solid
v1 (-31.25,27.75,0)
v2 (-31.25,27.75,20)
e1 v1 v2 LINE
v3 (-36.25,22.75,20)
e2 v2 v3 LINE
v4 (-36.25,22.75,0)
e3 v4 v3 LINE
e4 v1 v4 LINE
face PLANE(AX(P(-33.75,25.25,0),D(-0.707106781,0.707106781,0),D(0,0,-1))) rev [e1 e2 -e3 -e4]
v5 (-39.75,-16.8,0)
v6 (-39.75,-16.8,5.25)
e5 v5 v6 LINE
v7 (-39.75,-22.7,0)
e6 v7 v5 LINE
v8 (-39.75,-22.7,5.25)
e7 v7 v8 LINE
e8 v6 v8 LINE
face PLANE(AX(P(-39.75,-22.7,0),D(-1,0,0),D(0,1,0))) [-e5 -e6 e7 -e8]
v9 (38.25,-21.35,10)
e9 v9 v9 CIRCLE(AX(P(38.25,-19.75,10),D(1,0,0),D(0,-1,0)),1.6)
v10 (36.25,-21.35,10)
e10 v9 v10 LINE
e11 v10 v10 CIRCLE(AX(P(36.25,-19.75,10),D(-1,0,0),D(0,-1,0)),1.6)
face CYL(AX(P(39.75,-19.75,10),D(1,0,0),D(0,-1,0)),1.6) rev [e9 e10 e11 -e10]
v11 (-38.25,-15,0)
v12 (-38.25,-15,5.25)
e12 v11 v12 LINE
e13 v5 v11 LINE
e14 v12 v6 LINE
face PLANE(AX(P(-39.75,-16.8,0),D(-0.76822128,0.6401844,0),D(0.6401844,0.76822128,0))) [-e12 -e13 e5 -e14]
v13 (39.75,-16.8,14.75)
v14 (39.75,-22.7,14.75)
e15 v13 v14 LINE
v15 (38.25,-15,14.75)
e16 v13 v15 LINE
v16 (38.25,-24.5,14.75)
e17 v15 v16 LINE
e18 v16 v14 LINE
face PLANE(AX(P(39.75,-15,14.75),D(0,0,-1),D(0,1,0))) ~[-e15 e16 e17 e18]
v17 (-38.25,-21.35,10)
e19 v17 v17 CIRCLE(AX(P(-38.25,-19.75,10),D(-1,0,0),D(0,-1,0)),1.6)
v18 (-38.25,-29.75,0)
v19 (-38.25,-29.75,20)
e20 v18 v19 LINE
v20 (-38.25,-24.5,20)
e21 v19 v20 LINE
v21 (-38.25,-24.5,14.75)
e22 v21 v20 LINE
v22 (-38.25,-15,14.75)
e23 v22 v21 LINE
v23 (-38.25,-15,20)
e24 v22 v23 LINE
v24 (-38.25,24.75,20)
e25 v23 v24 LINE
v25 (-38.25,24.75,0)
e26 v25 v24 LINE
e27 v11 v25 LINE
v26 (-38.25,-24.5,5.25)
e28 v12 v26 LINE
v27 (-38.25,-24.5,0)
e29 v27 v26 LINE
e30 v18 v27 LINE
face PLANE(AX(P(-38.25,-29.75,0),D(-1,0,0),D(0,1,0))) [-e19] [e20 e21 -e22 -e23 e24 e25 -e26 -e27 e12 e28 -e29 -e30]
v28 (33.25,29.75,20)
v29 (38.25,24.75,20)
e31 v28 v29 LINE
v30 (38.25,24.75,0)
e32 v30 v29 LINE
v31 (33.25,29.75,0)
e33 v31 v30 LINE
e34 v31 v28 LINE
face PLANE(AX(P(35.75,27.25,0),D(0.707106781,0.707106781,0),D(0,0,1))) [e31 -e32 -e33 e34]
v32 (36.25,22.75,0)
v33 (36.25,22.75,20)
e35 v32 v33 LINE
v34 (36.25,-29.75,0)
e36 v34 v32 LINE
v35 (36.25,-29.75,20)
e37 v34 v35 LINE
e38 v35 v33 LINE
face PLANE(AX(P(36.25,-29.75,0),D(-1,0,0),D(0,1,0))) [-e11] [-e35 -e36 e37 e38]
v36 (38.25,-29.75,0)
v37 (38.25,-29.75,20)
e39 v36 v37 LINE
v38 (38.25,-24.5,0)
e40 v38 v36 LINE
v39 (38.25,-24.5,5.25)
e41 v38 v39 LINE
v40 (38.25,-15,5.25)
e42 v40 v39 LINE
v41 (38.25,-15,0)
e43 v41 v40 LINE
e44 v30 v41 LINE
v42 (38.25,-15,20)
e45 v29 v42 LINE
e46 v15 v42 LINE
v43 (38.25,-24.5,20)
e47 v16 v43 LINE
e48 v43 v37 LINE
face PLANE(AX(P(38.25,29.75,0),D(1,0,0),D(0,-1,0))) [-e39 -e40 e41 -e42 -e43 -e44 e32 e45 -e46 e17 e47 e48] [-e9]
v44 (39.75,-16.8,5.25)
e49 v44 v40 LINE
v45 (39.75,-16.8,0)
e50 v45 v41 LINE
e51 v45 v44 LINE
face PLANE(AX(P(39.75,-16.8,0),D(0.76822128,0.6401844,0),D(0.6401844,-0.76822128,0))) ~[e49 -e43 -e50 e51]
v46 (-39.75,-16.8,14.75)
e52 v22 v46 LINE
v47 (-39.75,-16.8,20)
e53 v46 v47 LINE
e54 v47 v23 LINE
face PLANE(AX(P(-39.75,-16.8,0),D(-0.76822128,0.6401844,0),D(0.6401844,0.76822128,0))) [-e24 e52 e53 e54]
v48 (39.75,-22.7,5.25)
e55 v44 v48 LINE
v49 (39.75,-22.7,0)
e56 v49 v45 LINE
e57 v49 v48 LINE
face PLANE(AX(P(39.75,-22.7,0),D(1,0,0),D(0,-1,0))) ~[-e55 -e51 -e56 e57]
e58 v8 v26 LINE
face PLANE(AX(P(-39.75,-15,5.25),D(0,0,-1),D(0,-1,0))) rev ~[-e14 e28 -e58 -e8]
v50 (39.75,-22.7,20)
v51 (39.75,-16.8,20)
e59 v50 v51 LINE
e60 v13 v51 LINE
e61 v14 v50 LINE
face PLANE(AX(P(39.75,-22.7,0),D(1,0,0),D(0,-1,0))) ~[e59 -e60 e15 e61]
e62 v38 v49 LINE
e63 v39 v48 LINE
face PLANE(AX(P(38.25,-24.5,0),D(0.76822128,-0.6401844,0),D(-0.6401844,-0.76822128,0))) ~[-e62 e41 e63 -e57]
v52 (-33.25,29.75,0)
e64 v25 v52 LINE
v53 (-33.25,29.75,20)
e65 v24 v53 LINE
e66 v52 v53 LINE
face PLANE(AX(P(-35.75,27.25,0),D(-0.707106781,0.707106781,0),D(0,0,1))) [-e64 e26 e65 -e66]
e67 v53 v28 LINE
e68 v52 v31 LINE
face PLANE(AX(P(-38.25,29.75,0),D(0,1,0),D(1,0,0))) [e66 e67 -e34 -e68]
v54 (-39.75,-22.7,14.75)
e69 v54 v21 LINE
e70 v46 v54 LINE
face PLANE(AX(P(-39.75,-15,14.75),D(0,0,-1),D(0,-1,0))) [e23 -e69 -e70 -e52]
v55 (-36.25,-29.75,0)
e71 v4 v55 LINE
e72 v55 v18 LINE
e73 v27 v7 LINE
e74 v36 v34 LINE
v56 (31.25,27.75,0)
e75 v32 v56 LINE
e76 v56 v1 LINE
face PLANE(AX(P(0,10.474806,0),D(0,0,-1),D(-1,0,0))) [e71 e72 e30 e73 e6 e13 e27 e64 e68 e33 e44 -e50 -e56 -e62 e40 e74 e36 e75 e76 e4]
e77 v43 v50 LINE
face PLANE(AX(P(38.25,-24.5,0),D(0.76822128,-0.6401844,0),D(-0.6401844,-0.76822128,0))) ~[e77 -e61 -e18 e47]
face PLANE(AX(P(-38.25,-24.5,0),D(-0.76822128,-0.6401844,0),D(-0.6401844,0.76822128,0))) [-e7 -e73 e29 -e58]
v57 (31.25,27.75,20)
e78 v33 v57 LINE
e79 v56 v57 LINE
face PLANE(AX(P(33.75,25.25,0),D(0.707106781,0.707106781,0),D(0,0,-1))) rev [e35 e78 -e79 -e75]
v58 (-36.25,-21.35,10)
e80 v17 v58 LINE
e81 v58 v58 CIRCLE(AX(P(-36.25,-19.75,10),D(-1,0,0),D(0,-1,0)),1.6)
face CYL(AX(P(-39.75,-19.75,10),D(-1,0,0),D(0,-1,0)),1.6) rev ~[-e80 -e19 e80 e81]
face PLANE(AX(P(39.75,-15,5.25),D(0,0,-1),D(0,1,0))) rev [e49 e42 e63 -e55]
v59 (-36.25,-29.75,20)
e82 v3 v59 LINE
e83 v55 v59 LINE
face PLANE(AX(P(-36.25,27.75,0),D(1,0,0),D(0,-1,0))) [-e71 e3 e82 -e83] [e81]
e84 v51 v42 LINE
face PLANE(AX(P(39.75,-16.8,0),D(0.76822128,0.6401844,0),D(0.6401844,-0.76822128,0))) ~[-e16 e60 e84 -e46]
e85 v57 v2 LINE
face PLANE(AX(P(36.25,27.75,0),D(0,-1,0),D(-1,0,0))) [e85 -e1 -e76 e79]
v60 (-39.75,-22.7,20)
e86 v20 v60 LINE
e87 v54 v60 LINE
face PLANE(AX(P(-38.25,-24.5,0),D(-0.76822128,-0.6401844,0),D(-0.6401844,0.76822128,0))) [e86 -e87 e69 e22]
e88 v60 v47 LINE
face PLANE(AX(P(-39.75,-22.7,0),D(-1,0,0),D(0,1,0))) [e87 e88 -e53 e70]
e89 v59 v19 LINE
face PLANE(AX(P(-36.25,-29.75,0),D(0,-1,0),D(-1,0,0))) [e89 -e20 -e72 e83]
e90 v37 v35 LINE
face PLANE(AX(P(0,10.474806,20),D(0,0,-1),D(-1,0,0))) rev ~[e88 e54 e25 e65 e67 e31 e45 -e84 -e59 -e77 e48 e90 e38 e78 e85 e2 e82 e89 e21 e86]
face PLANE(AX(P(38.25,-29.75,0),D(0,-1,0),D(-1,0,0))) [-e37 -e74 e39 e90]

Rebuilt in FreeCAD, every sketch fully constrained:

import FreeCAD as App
import Part
import Sketcher
from FreeCAD import Vector


def edges_at(feature, points):
    """Names of the edges that pass closest to the given points."""
    edges = feature.Shape.Edges
    near = lambda p: min(range(len(edges)), key=lambda i: edges[i].distToShape(Part.Vertex(*p))[0])
    return sorted({f"Edge{near(p) + 1}" for p in points})


def add_polygon(sketch, points):
    """Adds a closed chain of lines whose ends are joined by coincident constraints."""
    first, n = sketch.GeometryCount, len(points)
    for a, b in zip(points, points[1:] + points[:1]):
        sketch.addGeometry(Part.LineSegment(App.Vector(*a, 0), App.Vector(*b, 0)), False)
    for i in range(n):
        sketch.addConstraint(Sketcher.Constraint("Coincident", first + i, 2, first + (i + 1) % n, 1))

doc = App.newDocument("Part")
params = doc.addObject("Spreadsheet::Sheet", "Params")
for row, (alias, value) in enumerate([
    ("sketch1_width", "2 mm"),
    ("sketch1_width2", "72.5 mm"),
    ("sketch1_height", "59.5 mm"),
    ("sketch1_height2", "57.5 mm"),
    ("pad1_length", "20 mm"),
    ("sketch2_height", "5.9 mm"),
    ("sketch2_height2", "9.5 mm"),
    ("pad2_length", "20 mm"),
    ("sketch3_diameter", "3.2 mm"),
    ("pocket1_length", "3.5 mm"),
    ("sketch4_width", "9.5 mm"),
    ("pocket2_length", "1.5 mm"),
    ("chamfer_size", "5 mm"),
], start=1):
    params.set(f"A{row}", alias)
    params.set(f"B{row}", "=" + value)
    params.setAlias(f"B{row}", alias)

body = doc.addObject("PartDesign::Body", "Body")

# Sketch on XY plane
sketch1 = body.newObject("Sketcher::SketchObject", "Sketch")
sketch1.AttachmentSupport = (doc.getObject("XY_Plane"), [""])
sketch1.MapMode = "FlatFace"
add_polygon(sketch1, [(-38.2, 29.8), (-38.2, -29.8), (-36.2, -29.8), (-36.2, 27.8), (36.2, 27.8), (36.2, -29.8), (38.2, -29.8), (38.2, 29.8)])  # lines 0-7
sketch1.addConstraint([
    Sketcher.Constraint("Vertical", 0),
    Sketcher.Constraint("Horizontal", 1),
    Sketcher.Constraint("Vertical", 2),
    Sketcher.Constraint("Horizontal", 3),
    Sketcher.Constraint("Vertical", 4),
    Sketcher.Constraint("Horizontal", 5),
    Sketcher.Constraint("Vertical", 6),
    Sketcher.Constraint("Horizontal", 7),
    Sketcher.Constraint("Symmetric", 0, 2, 6, 2, -1, 1),
    Sketcher.Constraint("Symmetric", 1, 2, 4, 2, -2),
    Sketcher.Constraint("DistanceX", 1, 1, 1, 2, 2.0),
    Sketcher.Constraint("DistanceX", 3, 1, 3, 2, 72.5),
    Sketcher.Constraint("DistanceY", 0, 2, 0, 1, 59.5),
    Sketcher.Constraint("DistanceY", 2, 1, 2, 2, 57.5),
])
sketch1.setExpression("Constraints[18]", "Params.sketch1_width")
sketch1.setExpression("Constraints[19]", "Params.sketch1_width2")
sketch1.setExpression("Constraints[20]", "Params.sketch1_height")
sketch1.setExpression("Constraints[21]", "Params.sketch1_height2")
pad1 = body.newObject("PartDesign::Pad", "Pad")
pad1.Profile = sketch1
pad1.setExpression("Length", "Params.pad1_length")

# Sketch on XY plane
sketch2 = body.newObject("Sketcher::SketchObject", "Sketch001")
sketch2.AttachmentSupport = (doc.getObject("XY_Plane"), [""])
sketch2.MapMode = "FlatFace"
add_polygon(sketch2, [(-38.2, -24.5), (-39.8, -22.7), (-39.8, -16.8), (-38.2, -15)])  # lines 0-3
sketch2.addConstraint([
    Sketcher.Constraint("Vertical", 1),
    Sketcher.Constraint("Vertical", 3),
    Sketcher.Constraint("Equal", 0, 2),
    Sketcher.Constraint("DistanceY", 1, 1, 1, 2, 5.9),
    Sketcher.Constraint("DistanceY", 3, 2, 3, 1, 9.5),
    Sketcher.Constraint("DistanceY", 2, 2, -1, 1, 15.0),
    Sketcher.Constraint("DistanceX", 1, 2, 2, 2, 1.5),
    Sketcher.Constraint("DistanceX", 0, 2, -1, 1, 39.75),
])
sketch2.setExpression("Constraints[7]", "Params.sketch2_height")
sketch2.setExpression("Constraints[8]", "Params.sketch2_height2")
pad2 = body.newObject("PartDesign::Pad", "Pad001")
pad2.Profile = sketch2
pad2.setExpression("Length", "Params.pad2_length")

# Sketch on YZ plane
sketch3 = body.newObject("Sketcher::SketchObject", "Sketch002")
sketch3.AttachmentSupport = (doc.getObject("YZ_Plane"), [""])
sketch3.MapMode = "FlatFace"
sketch3.AttachmentOffset = App.Placement(Vector(0, 0, -39.75), App.Rotation())
sketch3.addGeometry(Part.Circle(Vector(-19.8, 10, 0), Vector(0, 0, 1), 1.6), False)
sketch3.addConstraint([
    Sketcher.Constraint("Diameter", 0, 3.2),
    Sketcher.Constraint("DistanceY", -1, 1, 0, 3, 10.0),
    Sketcher.Constraint("DistanceX", 0, 3, -1, 1, 19.75),
])
sketch3.setExpression("Constraints[0]", "Params.sketch3_diameter")
pocket1 = body.newObject("PartDesign::Pocket", "Pocket")
pocket1.Profile = sketch3
pocket1.setExpression("Length", "Params.pocket1_length")
pocket1.Reversed = True

# Sketch on YZ plane
sketch4 = body.newObject("Sketcher::SketchObject", "Sketch003")
sketch4.AttachmentSupport = (doc.getObject("YZ_Plane"), [""])
sketch4.MapMode = "FlatFace"
sketch4.AttachmentOffset = App.Placement(Vector(0, 0, -39.75), App.Rotation())
add_polygon(sketch4, [(-15, 15), (-15, 5), (-24, 5), (-24, 15)])  # lines 0-3
sketch4.addConstraint([
    Sketcher.Constraint("Vertical", 0),
    Sketcher.Constraint("Horizontal", 1),
    Sketcher.Constraint("Vertical", 2),
    Sketcher.Constraint("Horizontal", 3),
    Sketcher.Constraint("Equal", 3, 0),
    Sketcher.Constraint("DistanceX", 1, 2, 1, 1, 9.5),
    Sketcher.Constraint("DistanceX", 0, 2, -1, 1, 15.0),
    Sketcher.Constraint("DistanceY", -1, 1, 0, 2, 5.25),
])
sketch4.setExpression("Constraints[9]", "Params.sketch4_width")
pocket2 = body.newObject("PartDesign::Pocket", "Pocket001")
pocket2.Profile = sketch4
pocket2.setExpression("Length", "Params.pocket2_length")
pocket2.Reversed = True
doc.recompute()

mirrored = body.newObject("PartDesign::Mirrored", "Mirrored")
mirrored.Originals = [pad2, pocket1, pocket2]
mirrored.MirrorPlane = (doc.getObject("YZ_Plane"), [""])
body.Tip = mirrored
doc.recompute()

chamfer = body.newObject("PartDesign::Chamfer", "Chamfer")
chamfer.Base = (mirrored, edges_at(mirrored, [
    (36.25, 27.75, 10),
    (-36.25, 27.75, 10),
    (-38.25, 29.75, 10),
    (38.25, 29.75, 10),
]))
chamfer.setExpression("Size", "Params.chamfer_size")

doc.recompute()
